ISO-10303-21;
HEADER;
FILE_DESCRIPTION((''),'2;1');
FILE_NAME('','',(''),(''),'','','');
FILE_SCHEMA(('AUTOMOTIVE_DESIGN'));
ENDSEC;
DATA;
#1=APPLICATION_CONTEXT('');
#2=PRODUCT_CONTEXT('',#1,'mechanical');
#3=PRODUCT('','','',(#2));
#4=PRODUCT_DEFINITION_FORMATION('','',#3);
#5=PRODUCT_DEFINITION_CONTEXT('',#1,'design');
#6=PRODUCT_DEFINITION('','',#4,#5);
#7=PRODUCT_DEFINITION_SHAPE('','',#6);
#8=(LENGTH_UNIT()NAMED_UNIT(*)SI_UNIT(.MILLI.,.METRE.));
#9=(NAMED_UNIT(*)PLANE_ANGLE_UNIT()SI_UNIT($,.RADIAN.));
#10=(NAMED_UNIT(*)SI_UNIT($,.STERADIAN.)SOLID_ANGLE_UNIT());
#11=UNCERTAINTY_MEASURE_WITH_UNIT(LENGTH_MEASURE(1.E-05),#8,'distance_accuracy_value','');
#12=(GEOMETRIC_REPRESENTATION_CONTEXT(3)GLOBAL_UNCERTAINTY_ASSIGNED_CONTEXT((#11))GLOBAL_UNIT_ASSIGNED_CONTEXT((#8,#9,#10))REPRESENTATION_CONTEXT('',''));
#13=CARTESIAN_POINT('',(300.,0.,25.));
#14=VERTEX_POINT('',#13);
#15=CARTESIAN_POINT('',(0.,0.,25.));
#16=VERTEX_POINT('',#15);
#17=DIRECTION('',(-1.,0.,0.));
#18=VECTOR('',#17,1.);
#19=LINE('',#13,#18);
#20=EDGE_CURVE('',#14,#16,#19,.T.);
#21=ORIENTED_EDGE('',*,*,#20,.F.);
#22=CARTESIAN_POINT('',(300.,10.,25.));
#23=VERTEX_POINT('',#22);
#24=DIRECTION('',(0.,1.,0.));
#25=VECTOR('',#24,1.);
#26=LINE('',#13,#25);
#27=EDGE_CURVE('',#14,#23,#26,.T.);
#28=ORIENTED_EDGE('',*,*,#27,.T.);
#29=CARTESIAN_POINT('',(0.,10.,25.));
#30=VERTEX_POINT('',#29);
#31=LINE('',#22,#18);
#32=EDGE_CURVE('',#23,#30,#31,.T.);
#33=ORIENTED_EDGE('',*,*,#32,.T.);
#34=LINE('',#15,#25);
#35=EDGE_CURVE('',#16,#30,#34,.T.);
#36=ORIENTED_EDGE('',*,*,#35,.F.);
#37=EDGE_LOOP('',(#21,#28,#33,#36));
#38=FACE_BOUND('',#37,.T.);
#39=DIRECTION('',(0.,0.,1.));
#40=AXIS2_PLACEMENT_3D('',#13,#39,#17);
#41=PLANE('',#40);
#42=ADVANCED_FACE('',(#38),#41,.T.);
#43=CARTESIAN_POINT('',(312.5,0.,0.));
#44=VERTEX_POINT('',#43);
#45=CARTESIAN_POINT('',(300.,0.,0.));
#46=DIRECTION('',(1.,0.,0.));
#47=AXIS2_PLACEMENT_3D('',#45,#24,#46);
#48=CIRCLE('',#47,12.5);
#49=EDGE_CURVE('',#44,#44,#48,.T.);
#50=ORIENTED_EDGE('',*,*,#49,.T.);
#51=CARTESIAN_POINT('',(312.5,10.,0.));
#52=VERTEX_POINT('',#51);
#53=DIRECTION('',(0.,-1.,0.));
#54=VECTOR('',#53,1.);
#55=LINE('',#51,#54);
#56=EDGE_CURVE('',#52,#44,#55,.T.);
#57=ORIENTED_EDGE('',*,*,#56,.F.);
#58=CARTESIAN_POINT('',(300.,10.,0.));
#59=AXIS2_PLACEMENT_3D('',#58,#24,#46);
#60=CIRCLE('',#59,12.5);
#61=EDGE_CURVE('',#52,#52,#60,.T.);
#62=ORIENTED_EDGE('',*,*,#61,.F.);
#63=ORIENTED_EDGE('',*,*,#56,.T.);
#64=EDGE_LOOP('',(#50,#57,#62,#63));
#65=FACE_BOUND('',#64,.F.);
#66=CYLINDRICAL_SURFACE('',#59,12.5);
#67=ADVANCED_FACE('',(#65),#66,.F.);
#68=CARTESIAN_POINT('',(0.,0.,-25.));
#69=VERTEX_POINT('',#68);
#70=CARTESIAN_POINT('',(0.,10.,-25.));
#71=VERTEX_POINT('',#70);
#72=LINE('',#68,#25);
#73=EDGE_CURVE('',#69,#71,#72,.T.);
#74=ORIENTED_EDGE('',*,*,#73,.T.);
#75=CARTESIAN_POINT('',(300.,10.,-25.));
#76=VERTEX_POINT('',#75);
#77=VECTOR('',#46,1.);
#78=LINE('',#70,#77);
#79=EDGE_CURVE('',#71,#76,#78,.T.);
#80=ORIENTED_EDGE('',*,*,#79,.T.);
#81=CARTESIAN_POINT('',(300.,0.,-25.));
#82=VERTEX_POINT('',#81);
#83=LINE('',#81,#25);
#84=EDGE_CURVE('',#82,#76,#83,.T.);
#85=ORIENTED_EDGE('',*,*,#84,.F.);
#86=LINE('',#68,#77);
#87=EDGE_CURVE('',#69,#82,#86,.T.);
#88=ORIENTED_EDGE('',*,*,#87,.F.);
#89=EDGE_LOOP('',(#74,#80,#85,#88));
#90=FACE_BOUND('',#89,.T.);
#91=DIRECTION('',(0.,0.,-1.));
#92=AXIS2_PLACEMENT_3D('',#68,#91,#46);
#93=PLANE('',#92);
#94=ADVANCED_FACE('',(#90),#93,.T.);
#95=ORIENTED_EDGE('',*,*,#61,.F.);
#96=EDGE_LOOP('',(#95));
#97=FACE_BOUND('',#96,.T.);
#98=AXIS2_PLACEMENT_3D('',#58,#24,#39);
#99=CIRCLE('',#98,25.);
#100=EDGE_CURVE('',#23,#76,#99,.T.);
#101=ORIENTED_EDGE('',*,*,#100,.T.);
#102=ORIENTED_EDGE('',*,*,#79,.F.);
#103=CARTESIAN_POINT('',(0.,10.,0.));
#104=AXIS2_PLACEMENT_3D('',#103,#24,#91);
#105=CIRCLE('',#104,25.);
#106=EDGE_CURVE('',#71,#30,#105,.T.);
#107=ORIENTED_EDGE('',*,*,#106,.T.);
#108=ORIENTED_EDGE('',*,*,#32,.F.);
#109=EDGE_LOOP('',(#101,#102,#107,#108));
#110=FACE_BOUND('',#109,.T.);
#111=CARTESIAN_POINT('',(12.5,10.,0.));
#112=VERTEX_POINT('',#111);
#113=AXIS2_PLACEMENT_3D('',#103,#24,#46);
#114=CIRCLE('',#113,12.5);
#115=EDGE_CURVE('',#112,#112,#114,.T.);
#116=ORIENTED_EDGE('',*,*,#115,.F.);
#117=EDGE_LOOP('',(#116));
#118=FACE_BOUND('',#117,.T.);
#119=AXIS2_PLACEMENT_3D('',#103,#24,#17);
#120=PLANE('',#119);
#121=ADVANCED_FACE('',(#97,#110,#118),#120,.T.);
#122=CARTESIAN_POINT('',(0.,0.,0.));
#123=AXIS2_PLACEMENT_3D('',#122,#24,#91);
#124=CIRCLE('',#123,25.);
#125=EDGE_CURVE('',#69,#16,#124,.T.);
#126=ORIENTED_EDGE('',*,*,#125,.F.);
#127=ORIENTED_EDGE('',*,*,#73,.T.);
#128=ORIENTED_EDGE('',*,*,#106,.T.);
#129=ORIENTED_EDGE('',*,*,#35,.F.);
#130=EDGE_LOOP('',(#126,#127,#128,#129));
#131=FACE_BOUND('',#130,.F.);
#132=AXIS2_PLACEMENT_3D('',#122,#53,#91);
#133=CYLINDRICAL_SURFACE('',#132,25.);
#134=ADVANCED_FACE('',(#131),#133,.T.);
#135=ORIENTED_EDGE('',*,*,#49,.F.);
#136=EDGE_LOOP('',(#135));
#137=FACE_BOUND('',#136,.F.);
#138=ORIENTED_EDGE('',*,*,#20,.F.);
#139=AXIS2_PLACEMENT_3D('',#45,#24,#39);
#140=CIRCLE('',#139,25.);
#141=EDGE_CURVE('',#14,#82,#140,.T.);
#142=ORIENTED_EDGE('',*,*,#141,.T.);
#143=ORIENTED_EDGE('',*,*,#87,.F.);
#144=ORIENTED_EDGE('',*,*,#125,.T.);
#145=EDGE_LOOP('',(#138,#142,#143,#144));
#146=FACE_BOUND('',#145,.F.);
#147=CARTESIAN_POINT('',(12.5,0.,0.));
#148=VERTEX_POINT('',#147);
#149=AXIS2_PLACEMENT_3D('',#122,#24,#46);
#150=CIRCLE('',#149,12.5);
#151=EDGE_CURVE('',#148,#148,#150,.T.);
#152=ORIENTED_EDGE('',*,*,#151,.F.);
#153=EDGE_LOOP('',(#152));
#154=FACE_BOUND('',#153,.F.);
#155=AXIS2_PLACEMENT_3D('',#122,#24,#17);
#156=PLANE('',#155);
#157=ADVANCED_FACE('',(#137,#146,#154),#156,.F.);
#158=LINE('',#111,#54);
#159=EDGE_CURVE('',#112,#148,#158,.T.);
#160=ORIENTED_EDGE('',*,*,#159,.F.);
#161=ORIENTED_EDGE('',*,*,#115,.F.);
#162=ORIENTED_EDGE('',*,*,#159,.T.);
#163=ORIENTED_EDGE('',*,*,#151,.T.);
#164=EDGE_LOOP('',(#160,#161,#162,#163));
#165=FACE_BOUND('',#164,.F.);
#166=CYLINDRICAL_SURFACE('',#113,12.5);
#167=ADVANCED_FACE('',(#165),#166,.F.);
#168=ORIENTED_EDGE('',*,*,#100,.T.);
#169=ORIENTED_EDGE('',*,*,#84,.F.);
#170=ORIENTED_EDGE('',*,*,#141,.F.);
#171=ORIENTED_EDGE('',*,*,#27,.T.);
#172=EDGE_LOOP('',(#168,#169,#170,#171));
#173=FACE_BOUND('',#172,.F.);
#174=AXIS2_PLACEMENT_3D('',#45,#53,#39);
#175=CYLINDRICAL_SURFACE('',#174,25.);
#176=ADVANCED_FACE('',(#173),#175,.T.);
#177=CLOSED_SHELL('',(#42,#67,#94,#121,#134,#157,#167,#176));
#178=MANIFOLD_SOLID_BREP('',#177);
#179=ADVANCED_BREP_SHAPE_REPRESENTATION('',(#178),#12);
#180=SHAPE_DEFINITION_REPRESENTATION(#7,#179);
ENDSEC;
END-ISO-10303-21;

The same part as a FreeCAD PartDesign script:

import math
import FreeCAD as App
import Part
import Sketcher
Q = App.Units.Quantity

doc = App.newDocument("Part")
body = doc.addObject("PartDesign::Body", "Body")

# Sketch on XZ plane
sketch1 = body.newObject("Sketcher::SketchObject", "Sketch")
sketch1.AttachmentSupport = (doc.getObject("XZ_Plane"), [""])
sketch1.MapMode = "FlatFace"
sketch1.addGeometry([
    Part.LineSegment(App.Vector(300, -25, 0), App.Vector(0, -25, 0)),
    Part.ArcOfCircle(Part.Circle(App.Vector(0, 0, 0), App.Vector(0, 0, 1), 25), math.radians(90), math.radians(270)),
    Part.LineSegment(App.Vector(0, 25, 0), App.Vector(300, 25, 0)),
    Part.ArcOfCircle(Part.Circle(App.Vector(300, 0, 0), App.Vector(0, 0, 1), 25), math.radians(-90), math.radians(90)),
], False)
sketch1.addConstraint([
    Sketcher.Constraint("Tangent", 0, 2, 1, 2),
    Sketcher.Constraint("Tangent", 1, 1, 2, 1),
    Sketcher.Constraint("Tangent", 2, 2, 3, 2),
    Sketcher.Constraint("Tangent", 3, 1, 0, 1),
    Sketcher.Constraint("Horizontal", 0),
    Sketcher.Constraint("Horizontal", 2),
    Sketcher.Constraint("Coincident", 1, 3, -1, 1),
    Sketcher.Constraint("Radius", 1, Q("25 mm")),
    Sketcher.Constraint("DistanceX", 0, 2, 0, 1, Q("300 mm")),
])
pad1 = body.newObject("PartDesign::Pad", "Pad")
pad1.Profile = sketch1
pad1.Length = 10
pad1.Reversed = True

# Sketch on XZ plane
sketch2 = body.newObject("Sketcher::SketchObject", "Sketch001")
sketch2.AttachmentSupport = (doc.getObject("XZ_Plane"), [""])
sketch2.MapMode = "FlatFace"
sketch2.AttachmentOffset = App.Placement(App.Vector(0, 0, -10), App.Rotation())
sketch2.addGeometry([
    Part.Circle(App.Vector(0, 0, 0), App.Vector(0, 0, 1), 12),
    Part.Circle(App.Vector(300, 0, 0), App.Vector(0, 0, 1), 12),
], False)
sketch2.addConstraint([
    Sketcher.Constraint("Coincident", 0, 3, -1, 1),
    Sketcher.Constraint("Equal", 0, 1),
    Sketcher.Constraint("PointOnObject", 1, 3, -1),
    Sketcher.Constraint("Diameter", 0, Q("25 mm")),
    Sketcher.Constraint("DistanceX", -1, 1, 1, 3, Q("300 mm")),
])
pocket1 = body.newObject("PartDesign::Pocket", "Pocket")
pocket1.Profile = sketch2
pocket1.Length = 10
pocket1.Reversed = True

doc.recompute()
